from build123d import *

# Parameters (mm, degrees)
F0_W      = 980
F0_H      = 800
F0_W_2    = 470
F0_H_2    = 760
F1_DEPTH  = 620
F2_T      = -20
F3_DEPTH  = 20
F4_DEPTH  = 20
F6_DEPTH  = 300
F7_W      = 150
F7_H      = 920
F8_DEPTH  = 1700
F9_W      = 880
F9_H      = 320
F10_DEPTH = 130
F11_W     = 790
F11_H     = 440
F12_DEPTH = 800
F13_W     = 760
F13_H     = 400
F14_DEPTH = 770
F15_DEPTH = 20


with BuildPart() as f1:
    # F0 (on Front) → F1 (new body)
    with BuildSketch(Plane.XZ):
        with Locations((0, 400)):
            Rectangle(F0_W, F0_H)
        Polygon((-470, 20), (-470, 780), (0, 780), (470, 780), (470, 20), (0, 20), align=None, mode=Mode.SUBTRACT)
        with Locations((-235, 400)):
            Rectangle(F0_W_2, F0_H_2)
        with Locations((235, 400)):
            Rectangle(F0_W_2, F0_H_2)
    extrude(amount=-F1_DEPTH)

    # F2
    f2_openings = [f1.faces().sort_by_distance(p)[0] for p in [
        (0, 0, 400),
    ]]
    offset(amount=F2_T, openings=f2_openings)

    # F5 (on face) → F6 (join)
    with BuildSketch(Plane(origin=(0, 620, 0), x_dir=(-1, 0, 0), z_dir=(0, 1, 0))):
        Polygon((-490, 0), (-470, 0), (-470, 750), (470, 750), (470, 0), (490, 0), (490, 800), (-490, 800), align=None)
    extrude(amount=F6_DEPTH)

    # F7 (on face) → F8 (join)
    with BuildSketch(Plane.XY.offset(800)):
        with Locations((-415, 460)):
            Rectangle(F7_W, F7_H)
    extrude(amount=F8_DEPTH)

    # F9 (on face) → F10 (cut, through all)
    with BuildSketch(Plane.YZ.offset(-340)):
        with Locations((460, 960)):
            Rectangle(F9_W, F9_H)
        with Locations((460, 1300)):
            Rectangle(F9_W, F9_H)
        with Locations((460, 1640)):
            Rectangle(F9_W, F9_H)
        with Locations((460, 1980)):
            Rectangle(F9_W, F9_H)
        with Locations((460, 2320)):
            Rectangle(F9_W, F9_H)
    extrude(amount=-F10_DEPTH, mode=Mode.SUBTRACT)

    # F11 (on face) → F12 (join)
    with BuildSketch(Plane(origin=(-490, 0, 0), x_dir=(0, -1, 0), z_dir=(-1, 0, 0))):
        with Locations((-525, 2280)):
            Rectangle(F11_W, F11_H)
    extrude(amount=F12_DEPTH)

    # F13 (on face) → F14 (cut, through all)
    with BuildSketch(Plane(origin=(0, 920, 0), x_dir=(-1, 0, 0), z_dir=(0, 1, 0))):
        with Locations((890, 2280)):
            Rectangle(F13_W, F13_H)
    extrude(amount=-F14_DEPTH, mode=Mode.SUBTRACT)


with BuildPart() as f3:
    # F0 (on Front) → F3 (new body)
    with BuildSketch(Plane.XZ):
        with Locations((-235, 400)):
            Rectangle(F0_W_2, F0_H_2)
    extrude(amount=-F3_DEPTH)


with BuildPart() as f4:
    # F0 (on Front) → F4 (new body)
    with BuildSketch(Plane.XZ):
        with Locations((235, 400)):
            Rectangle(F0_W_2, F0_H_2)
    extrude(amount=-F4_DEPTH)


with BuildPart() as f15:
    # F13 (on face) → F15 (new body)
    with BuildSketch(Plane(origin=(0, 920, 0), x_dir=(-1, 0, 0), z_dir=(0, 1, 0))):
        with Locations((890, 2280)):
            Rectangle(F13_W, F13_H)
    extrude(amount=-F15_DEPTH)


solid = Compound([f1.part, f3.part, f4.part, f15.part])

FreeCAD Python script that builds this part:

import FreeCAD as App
import Part
import Sketcher
from FreeCAD import Vector


def faces_at(feature, points):
    """Names of the faces that lie closest to the given points."""
    faces = feature.Shape.Faces
    near = lambda p: min(range(len(faces)), key=lambda i: faces[i].distToShape(Part.Vertex(*p))[0])
    return sorted({f"Face{near(p) + 1}" for p in points})


def add_polygon(sketch, points):
    """Adds a closed chain of lines whose ends are joined by coincident constraints."""
    first, n = sketch.GeometryCount, len(points)
    for a, b in zip(points, points[1:] + points[:1]):
        sketch.addGeometry(Part.LineSegment(App.Vector(*a, 0), App.Vector(*b, 0)), False)
    for i in range(n):
        sketch.addConstraint(Sketcher.Constraint("Coincident", first + i, 2, first + (i + 1) % n, 1))

doc = App.newDocument("Part")
params = doc.addObject("Spreadsheet::Sheet", "Params")
for row, (alias, value) in enumerate([
    ("sketch1_width", "980 mm"),
    ("sketch1_height", "800 mm"),
    ("pad1_length", "620 mm"),
    ("thickness_wall", "20 mm"),
    ("sketch2_width", "20 mm"),
    ("sketch2_width2", "940 mm"),
    ("sketch2_height", "750 mm"),
    ("sketch2_height2", "800 mm"),
    ("pad2_length", "300 mm"),
    ("sketch3_width", "150 mm"),
    ("sketch3_height", "920 mm"),
    ("pad3_length", "1700 mm"),
    ("sketch4_width", "880 mm"),
    ("sketch4_height", "320 mm"),
    ("pocket1_length", "130 mm"),
    ("sketch5_width", "790 mm"),
    ("sketch5_height", "440 mm"),
    ("pad4_length", "800 mm"),
    ("sketch6_width", "760 mm"),
    ("sketch6_height", "400 mm"),
    ("pocket2_length", "770 mm"),
    ("sketch7_width", "470 mm"),
    ("sketch7_height", "760 mm"),
    ("pad5_length", "20 mm"),
    ("sketch8_width", "470 mm"),
    ("sketch8_height", "760 mm"),
    ("pad6_length", "20 mm"),
    ("sketch9_width", "760 mm"),
    ("sketch9_height", "400 mm"),
    ("pad7_length", "20 mm"),
], start=1):
    params.set(f"A{row}", alias)
    params.set(f"B{row}", "=" + value)
    params.setAlias(f"B{row}", alias)

body = doc.addObject("PartDesign::Body", "Body")

sketch1 = body.newObject("Sketcher::SketchObject", "Sketch")
sketch1.AttachmentSupport = (doc.getObject("XZ_Plane"), [""])
sketch1.MapMode = "FlatFace"
add_polygon(sketch1, [(-490, 800), (-490, 0), (490, 0), (490, 800)])
sketch1.addConstraint(Sketcher.Constraint("Vertical", 0))
sketch1.addConstraint(Sketcher.Constraint("Horizontal", 1))
sketch1.addConstraint(Sketcher.Constraint("Vertical", 2))
sketch1.addConstraint(Sketcher.Constraint("Horizontal", 3))
sketch1.addConstraint(Sketcher.Constraint("Symmetric", 0, 2, 1, 2, -1, 1))
sketch1.addConstraint(Sketcher.Constraint("DistanceX", 1, 1, 1, 2, 980.0))
sketch1.addConstraint(Sketcher.Constraint("DistanceY", 0, 2, 0, 1, 800.0))
sketch1.setExpression("Constraints[9]", "Params.sketch1_width")
sketch1.setExpression("Constraints[10]", "Params.sketch1_height")
pad1 = body.newObject("PartDesign::Pad", "Pad")
pad1.Profile = sketch1
pad1.setExpression("Length", "Params.pad1_length")
pad1.Reversed = True
doc.recompute()

thickness = body.newObject("PartDesign::Thickness", "Thickness")
thickness.Base = (pad1, faces_at(pad1, [(0, 0, 400)]))
thickness.setExpression("Value", "Params.thickness_wall")
thickness.Reversed = True
thickness.Join = "Arc"

sketch2 = body.newObject("Sketcher::SketchObject", "Sketch001")
sketch2.AttachmentSupport = (doc.getObject("XZ_Plane"), [""])
sketch2.MapMode = "FlatFace"
sketch2.AttachmentOffset = App.Placement(Vector(0, 0, -620), App.Rotation())
add_polygon(sketch2, [(490, 0), (470, 0), (470, 750), (-470, 750), (-470, 0), (-490, 0), (-490, 800), (490, 800)])
sketch2.addConstraint(Sketcher.Constraint("Horizontal", 0))
sketch2.addConstraint(Sketcher.Constraint("Vertical", 1))
sketch2.addConstraint(Sketcher.Constraint("Horizontal", 2))
sketch2.addConstraint(Sketcher.Constraint("Vertical", 3))
sketch2.addConstraint(Sketcher.Constraint("Horizontal", 4))
sketch2.addConstraint(Sketcher.Constraint("Vertical", 5))
sketch2.addConstraint(Sketcher.Constraint("Horizontal", 6))
sketch2.addConstraint(Sketcher.Constraint("Vertical", 7))
sketch2.addConstraint(Sketcher.Constraint("Symmetric", 0, 2, 3, 2, -1, 1))
sketch2.addConstraint(Sketcher.Constraint("Symmetric", 4, 2, 7, 2, -2))
sketch2.addConstraint(Sketcher.Constraint("DistanceX", 0, 2, 0, 1, 20.0))
sketch2.addConstraint(Sketcher.Constraint("DistanceX", 2, 2, 2, 1, 940.0))
sketch2.addConstraint(Sketcher.Constraint("DistanceY", 1, 1, 1, 2, 750.0))
sketch2.addConstraint(Sketcher.Constraint("DistanceY", 5, 1, 5, 2, 800.0))
sketch2.setExpression("Constraints[18]", "Params.sketch2_width")
sketch2.setExpression("Constraints[19]", "Params.sketch2_width2")
sketch2.setExpression("Constraints[20]", "Params.sketch2_height")
sketch2.setExpression("Constraints[21]", "Params.sketch2_height2")
pad2 = body.newObject("PartDesign::Pad", "Pad001")
pad2.Profile = sketch2
pad2.setExpression("Length", "Params.pad2_length")
pad2.Reversed = True

sketch3 = body.newObject("Sketcher::SketchObject", "Sketch002")
sketch3.AttachmentSupport = (doc.getObject("XY_Plane"), [""])
sketch3.MapMode = "FlatFace"
sketch3.AttachmentOffset = App.Placement(Vector(0, 0, 800), App.Rotation())
add_polygon(sketch3, [(-490, 920), (-490, 0), (-340, 0), (-340, 920)])
sketch3.addConstraint(Sketcher.Constraint("Vertical", 0))
sketch3.addConstraint(Sketcher.Constraint("Horizontal", 1))
sketch3.addConstraint(Sketcher.Constraint("Vertical", 2))
sketch3.addConstraint(Sketcher.Constraint("Horizontal", 3))
sketch3.addConstraint(Sketcher.Constraint("PointOnObject", 0, 2, -1))
sketch3.addConstraint(Sketcher.Constraint("DistanceX", 1, 1, 1, 2, 150.0))
sketch3.addConstraint(Sketcher.Constraint("DistanceY", 0, 2, 0, 1, 920.0))
sketch3.addConstraint(Sketcher.Constraint("DistanceX", 0, 2, -1, 1, 490.0))
sketch3.setExpression("Constraints[9]", "Params.sketch3_width")
sketch3.setExpression("Constraints[10]", "Params.sketch3_height")
pad3 = body.newObject("PartDesign::Pad", "Pad002")
pad3.Profile = sketch3
pad3.setExpression("Length", "Params.pad3_length")

sketch4 = body.newObject("Sketcher::SketchObject", "Sketch003")
sketch4.AttachmentSupport = (doc.getObject("YZ_Plane"), [""])
sketch4.MapMode = "FlatFace"
sketch4.AttachmentOffset = App.Placement(Vector(0, 0, -340), App.Rotation())
add_polygon(sketch4, [(20, 1120), (20, 800), (900, 800), (900, 1120)])
add_polygon(sketch4, [(20, 1460), (20, 1140), (900, 1140), (900, 1460)])
add_polygon(sketch4, [(20, 1800), (20, 1480), (900, 1480), (900, 1800)])
add_polygon(sketch4, [(20, 2140), (20, 1820), (900, 1820), (900, 2140)])
add_polygon(sketch4, [(20, 2480), (20, 2160), (900, 2160), (900, 2480)])
sketch4.addConstraint(Sketcher.Constraint("Vertical", 0))
sketch4.addConstraint(Sketcher.Constraint("Horizontal", 1))
sketch4.addConstraint(Sketcher.Constraint("Vertical", 2))
sketch4.addConstraint(Sketcher.Constraint("Horizontal", 3))
sketch4.addConstraint(Sketcher.Constraint("Vertical", 4))
sketch4.addConstraint(Sketcher.Constraint("Horizontal", 5))
sketch4.addConstraint(Sketcher.Constraint("Vertical", 6))
sketch4.addConstraint(Sketcher.Constraint("Horizontal", 7))
sketch4.addConstraint(Sketcher.Constraint("Vertical", 8))
sketch4.addConstraint(Sketcher.Constraint("Horizontal", 9))
sketch4.addConstraint(Sketcher.Constraint("Vertical", 10))
sketch4.addConstraint(Sketcher.Constraint("Horizontal", 11))
sketch4.addConstraint(Sketcher.Constraint("Vertical", 12))
sketch4.addConstraint(Sketcher.Constraint("Horizontal", 13))
sketch4.addConstraint(Sketcher.Constraint("Vertical", 14))
sketch4.addConstraint(Sketcher.Constraint("Horizontal", 15))
sketch4.addConstraint(Sketcher.Constraint("Vertical", 16))
sketch4.addConstraint(Sketcher.Constraint("Horizontal", 17))
sketch4.addConstraint(Sketcher.Constraint("Vertical", 18))
sketch4.addConstraint(Sketcher.Constraint("Horizontal", 19))
sketch4.addConstraint(Sketcher.Constraint("Vertical", 3, 2, 4, 2))
sketch4.addConstraint(Sketcher.Constraint("Vertical", 2, 2, 5, 2))
sketch4.addConstraint(Sketcher.Constraint("Vertical", 7, 2, 8, 2))
sketch4.addConstraint(Sketcher.Constraint("Vertical", 6, 2, 9, 2))
sketch4.addConstraint(Sketcher.Constraint("Vertical", 11, 2, 12, 2))
sketch4.addConstraint(Sketcher.Constraint("Vertical", 10, 2, 13, 2))
sketch4.addConstraint(Sketcher.Constraint("Vertical", 15, 2, 16, 2))
sketch4.addConstraint(Sketcher.Constraint("Vertical", 14, 2, 17, 2))
sketch4.addConstraint(Sketcher.Constraint("Equal", 2, 4))
sketch4.addConstraint(Sketcher.Constraint("Equal", 6, 8))
sketch4.addConstraint(Sketcher.Constraint("Equal", 10, 12))
sketch4.addConstraint(Sketcher.Constraint("Equal", 14, 16))
sketch4.addConstraint(Sketcher.Constraint("DistanceX", 1, 1, 1, 2, 880.0))
sketch4.addConstraint(Sketcher.Constraint("DistanceY", 0, 2, 0, 1, 320.0))
sketch4.addConstraint(Sketcher.Constraint("DistanceX", -1, 1, 0, 2, 20.0))
sketch4.addConstraint(Sketcher.Constraint("DistanceY", -1, 1, 0, 2, 800.0))
sketch4.addConstraint(Sketcher.Constraint("DistanceY", -1, 1, 4, 2, 1140.0))
sketch4.addConstraint(Sketcher.Constraint("DistanceY", -1, 1, 8, 2, 1480.0))
sketch4.addConstraint(Sketcher.Constraint("DistanceY", -1, 1, 12, 2, 1820.0))
sketch4.addConstraint(Sketcher.Constraint("DistanceY", -1, 1, 16, 2, 2160.0))
sketch4.setExpression("Constraints[52]", "Params.sketch4_width")
sketch4.setExpression("Constraints[53]", "Params.sketch4_height")
pocket1 = body.newObject("PartDesign::Pocket", "Pocket")
pocket1.Profile = sketch4
pocket1.setExpression("Length", "Params.pocket1_length")

sketch5 = body.newObject("Sketcher::SketchObject", "Sketch004")
sketch5.AttachmentSupport = (doc.getObject("YZ_Plane"), [""])
sketch5.MapMode = "FlatFace"
sketch5.AttachmentOffset = App.Placement(Vector(0, 0, -490), App.Rotation())
add_polygon(sketch5, [(920, 2500), (920, 2060), (130, 2060), (130, 2500)])
sketch5.addConstraint(Sketcher.Constraint("Vertical", 0))
sketch5.addConstraint(Sketcher.Constraint("Horizontal", 1))
sketch5.addConstraint(Sketcher.Constraint("Vertical", 2))
sketch5.addConstraint(Sketcher.Constraint("Horizontal", 3))
sketch5.addConstraint(Sketcher.Constraint("DistanceX", 1, 2, 1, 1, 790.0))
sketch5.addConstraint(Sketcher.Constraint("DistanceY", 0, 2, 0, 1, 440.0))
sketch5.addConstraint(Sketcher.Constraint("DistanceX", -1, 1, 0, 2, 920.0))
sketch5.addConstraint(Sketcher.Constraint("DistanceY", -1, 1, 0, 2, 2060.0))
sketch5.setExpression("Constraints[8]", "Params.sketch5_width")
sketch5.setExpression("Constraints[9]", "Params.sketch5_height")
pad4 = body.newObject("PartDesign::Pad", "Pad003")
pad4.Profile = sketch5
pad4.setExpression("Length", "Params.pad4_length")
pad4.Reversed = True

sketch6 = body.newObject("Sketcher::SketchObject", "Sketch005")
sketch6.AttachmentSupport = (doc.getObject("XZ_Plane"), [""])
sketch6.MapMode = "FlatFace"
sketch6.AttachmentOffset = App.Placement(Vector(0, 0, -920), App.Rotation())
add_polygon(sketch6, [(-510, 2480), (-510, 2080), (-1270, 2080), (-1270, 2480)])
sketch6.addConstraint(Sketcher.Constraint("Vertical", 0))
sketch6.addConstraint(Sketcher.Constraint("Horizontal", 1))
sketch6.addConstraint(Sketcher.Constraint("Vertical", 2))
sketch6.addConstraint(Sketcher.Constraint("Horizontal", 3))
sketch6.addConstraint(Sketcher.Constraint("DistanceX", 1, 2, 1, 1, 760.0))
sketch6.addConstraint(Sketcher.Constraint("DistanceY", 0, 2, 0, 1, 400.0))
sketch6.addConstraint(Sketcher.Constraint("DistanceX", 0, 2, -1, 1, 510.0))
sketch6.addConstraint(Sketcher.Constraint("DistanceY", -1, 1, 0, 2, 2080.0))
sketch6.setExpression("Constraints[8]", "Params.sketch6_width")
sketch6.setExpression("Constraints[9]", "Params.sketch6_height")
pocket2 = body.newObject("PartDesign::Pocket", "Pocket001")
pocket2.Profile = sketch6
pocket2.setExpression("Length", "Params.pocket2_length")
pocket2.Reversed = True
body2 = doc.addObject("PartDesign::Body", "Body001")

sketch7 = body2.newObject("Sketcher::SketchObject", "Sketch006")
sketch7.AttachmentSupport = (doc.getObject("XZ_Plane001"), [""])
sketch7.MapMode = "FlatFace"
add_polygon(sketch7, [(-470, 780), (-470, 20), (0, 20), (0, 780)])
sketch7.addConstraint(Sketcher.Constraint("Vertical", 0))
sketch7.addConstraint(Sketcher.Constraint("Horizontal", 1))
sketch7.addConstraint(Sketcher.Constraint("Vertical", 2))
sketch7.addConstraint(Sketcher.Constraint("Horizontal", 3))
sketch7.addConstraint(Sketcher.Constraint("PointOnObject", 1, 2, -2))
sketch7.addConstraint(Sketcher.Constraint("DistanceX", 1, 1, 1, 2, 470.0))
sketch7.addConstraint(Sketcher.Constraint("DistanceY", 0, 2, 0, 1, 760.0))
sketch7.addConstraint(Sketcher.Constraint("DistanceY", -1, 1, 0, 2, 20.0))
sketch7.setExpression("Constraints[9]", "Params.sketch7_width")
sketch7.setExpression("Constraints[10]", "Params.sketch7_height")
pad5 = body2.newObject("PartDesign::Pad", "Pad004")
pad5.Profile = sketch7
pad5.setExpression("Length", "Params.pad5_length")
pad5.Reversed = True
body3 = doc.addObject("PartDesign::Body", "Body002")

sketch8 = body3.newObject("Sketcher::SketchObject", "Sketch007")
sketch8.AttachmentSupport = (doc.getObject("XZ_Plane002"), [""])
sketch8.MapMode = "FlatFace"
add_polygon(sketch8, [(0, 780), (0, 20), (470, 20), (470, 780)])
sketch8.addConstraint(Sketcher.Constraint("Vertical", 0))
sketch8.addConstraint(Sketcher.Constraint("Horizontal", 1))
sketch8.addConstraint(Sketcher.Constraint("Vertical", 2))
sketch8.addConstraint(Sketcher.Constraint("Horizontal", 3))
sketch8.addConstraint(Sketcher.Constraint("PointOnObject", 0, 2, -2))
sketch8.addConstraint(Sketcher.Constraint("DistanceX", 1, 1, 1, 2, 470.0))
sketch8.addConstraint(Sketcher.Constraint("DistanceY", 0, 2, 0, 1, 760.0))
sketch8.addConstraint(Sketcher.Constraint("DistanceY", -1, 1, 0, 2, 20.0))
sketch8.setExpression("Constraints[9]", "Params.sketch8_width")
sketch8.setExpression("Constraints[10]", "Params.sketch8_height")
pad6 = body3.newObject("PartDesign::Pad", "Pad005")
pad6.Profile = sketch8
pad6.setExpression("Length", "Params.pad6_length")
pad6.Reversed = True
body4 = doc.addObject("PartDesign::Body", "Body003")

sketch9 = body4.newObject("Sketcher::SketchObject", "Sketch008")
sketch9.AttachmentSupport = (doc.getObject("XZ_Plane003"), [""])
sketch9.MapMode = "FlatFace"
sketch9.AttachmentOffset = App.Placement(Vector(0, 0, -920), App.Rotation())
add_polygon(sketch9, [(-510, 2480), (-510, 2080), (-1270, 2080), (-1270, 2480)])
sketch9.addConstraint(Sketcher.Constraint("Vertical", 0))
sketch9.addConstraint(Sketcher.Constraint("Horizontal", 1))
sketch9.addConstraint(Sketcher.Constraint("Vertical", 2))
sketch9.addConstraint(Sketcher.Constraint("Horizontal", 3))
sketch9.addConstraint(Sketcher.Constraint("DistanceX", 1, 2, 1, 1, 760.0))
sketch9.addConstraint(Sketcher.Constraint("DistanceY", 0, 2, 0, 1, 400.0))
sketch9.addConstraint(Sketcher.Constraint("DistanceX", 0, 2, -1, 1, 510.0))
sketch9.addConstraint(Sketcher.Constraint("DistanceY", -1, 1, 0, 2, 2080.0))
sketch9.setExpression("Constraints[8]", "Params.sketch9_width")
sketch9.setExpression("Constraints[9]", "Params.sketch9_height")
pad7 = body4.newObject("PartDesign::Pad", "Pad006")
pad7.Profile = sketch9
pad7.setExpression("Length", "Params.pad7_length")

doc.recompute()
